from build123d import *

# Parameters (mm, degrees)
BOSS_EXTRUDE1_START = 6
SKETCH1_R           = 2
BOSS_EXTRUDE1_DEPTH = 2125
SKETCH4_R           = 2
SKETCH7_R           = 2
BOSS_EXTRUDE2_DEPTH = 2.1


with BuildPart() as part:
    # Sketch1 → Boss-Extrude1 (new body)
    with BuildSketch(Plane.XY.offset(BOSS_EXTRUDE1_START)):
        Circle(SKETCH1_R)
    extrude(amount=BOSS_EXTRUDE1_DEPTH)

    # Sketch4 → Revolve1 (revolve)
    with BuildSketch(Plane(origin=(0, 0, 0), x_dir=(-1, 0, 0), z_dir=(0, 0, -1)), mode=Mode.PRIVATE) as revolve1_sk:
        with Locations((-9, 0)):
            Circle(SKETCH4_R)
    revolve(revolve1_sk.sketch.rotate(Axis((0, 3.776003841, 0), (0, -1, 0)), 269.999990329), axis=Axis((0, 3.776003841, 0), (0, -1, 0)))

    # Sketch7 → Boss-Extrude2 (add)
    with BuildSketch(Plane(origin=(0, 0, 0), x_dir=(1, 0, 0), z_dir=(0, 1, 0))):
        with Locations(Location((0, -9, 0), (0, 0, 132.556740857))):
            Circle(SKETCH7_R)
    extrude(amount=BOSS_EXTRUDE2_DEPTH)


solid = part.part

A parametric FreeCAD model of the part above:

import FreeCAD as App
import Part
import Sketcher
Q = App.Units.Quantity

doc = App.newDocument("Part")
body = doc.addObject("PartDesign::Body", "Body")

sketch1 = doc.addObject("Sketcher::SketchObject", "Sketch")
body.addObject(sketch1)
sketch1.AttachmentSupport = (doc.XY_Plane, [""])
sketch1.MapMode = "FlatFace"
sketch1.AttachmentOffset = App.Placement(App.Vector(0, 0, 6), App.Rotation())
sketch1.addGeometry(Part.Circle(App.Vector(0, 0, 0), App.Vector(0, 0, 1), 2), False)
sketch1.addConstraint([
    Sketcher.Constraint("Coincident", 0, 3, -1, 1),
    Sketcher.Constraint("Diameter", 0, Q("4 mm")),
])
pad1 = doc.addObject("PartDesign::Pad", "Pad")
body.addObject(pad1)
pad1.Profile = sketch1
pad1.Length = 2125

sketch2 = doc.addObject("Sketcher::SketchObject", "Sketch001")
body.addObject(sketch2)
sketch2.AttachmentSupport = (doc.XY_Plane, [""])
sketch2.MapMode = "FlatFace"
sketch2.addGeometry(Part.Circle(App.Vector(9, 0, 0), App.Vector(0, 0, 1), 2), False)
sketch2.addConstraint([
    Sketcher.Constraint("PointOnObject", 0, 3, -1),
    Sketcher.Constraint("Diameter", 0, Q("4 mm")),
    Sketcher.Constraint("DistanceX", -1, 1, 0, 3, Q("9 mm")),
])
revolution = doc.addObject("PartDesign::Revolution", "Revolution")
body.addObject(revolution)
revolution.Profile = sketch2
revolution.ReferenceAxis = (sketch2, ["V_Axis"])
revolution.Angle = 360

sketch3 = doc.addObject("Sketcher::SketchObject", "Sketch002")
body.addObject(sketch3)
sketch3.AttachmentSupport = (doc.XZ_Plane, [""])
sketch3.MapMode = "FlatFace"
sketch3.addGeometry(Part.Circle(App.Vector(0, 9, 0), App.Vector(0, 0, 1), 2), False)
sketch3.addConstraint([
    Sketcher.Constraint("PointOnObject", 0, 3, -2),
    Sketcher.Constraint("Diameter", 0, Q("4 mm")),
    Sketcher.Constraint("DistanceY", -1, 1, 0, 3, Q("9 mm")),
])
pad2 = doc.addObject("PartDesign::Pad", "Pad001")
body.addObject(pad2)
pad2.Profile = sketch3
pad2.Length = 2.1
pad2.Reversed = True

doc.recompute()
